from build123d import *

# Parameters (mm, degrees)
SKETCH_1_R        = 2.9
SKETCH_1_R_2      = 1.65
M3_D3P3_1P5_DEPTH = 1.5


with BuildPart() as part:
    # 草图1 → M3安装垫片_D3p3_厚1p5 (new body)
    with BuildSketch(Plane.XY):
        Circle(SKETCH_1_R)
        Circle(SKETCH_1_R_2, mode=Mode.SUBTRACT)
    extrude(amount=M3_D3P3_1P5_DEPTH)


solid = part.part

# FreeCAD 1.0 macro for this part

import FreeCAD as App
import Part
import Sketcher
from FreeCAD import Vector
Q = App.Units.Quantity

doc = App.newDocument("Part")
body = doc.addObject("PartDesign::Body", "Body")

# Sketch on XY plane
sketch1 = doc.addObject("Sketcher::SketchObject", "Sketch")
body.addObject(sketch1)
sketch1.AttachmentSupport = (doc.XY_Plane, [""])
sketch1.MapMode = "FlatFace"
sketch1.addGeometry(Part.Circle(Vector(0, 0, 0), Vector(0, 0, 1), 2.9), False)
sketch1.addGeometry(Part.Circle(Vector(0, 0, 0), Vector(0, 0, 1), 1.6), False)
sketch1.addConstraint(Sketcher.Constraint("Coincident", 0, 3, -1, 1))
sketch1.addConstraint(Sketcher.Constraint("Coincident", 1, 3, -1, 1))
sketch1.addConstraint(Sketcher.Constraint("Diameter", 0, Q("5.8 mm")))
sketch1.addConstraint(Sketcher.Constraint("Diameter", 1, Q("3.3 mm")))
pad1 = doc.addObject("PartDesign::Pad", "Pad")
body.addObject(pad1)
pad1.Profile = sketch1
pad1.Length = 1.5

doc.recompute()
